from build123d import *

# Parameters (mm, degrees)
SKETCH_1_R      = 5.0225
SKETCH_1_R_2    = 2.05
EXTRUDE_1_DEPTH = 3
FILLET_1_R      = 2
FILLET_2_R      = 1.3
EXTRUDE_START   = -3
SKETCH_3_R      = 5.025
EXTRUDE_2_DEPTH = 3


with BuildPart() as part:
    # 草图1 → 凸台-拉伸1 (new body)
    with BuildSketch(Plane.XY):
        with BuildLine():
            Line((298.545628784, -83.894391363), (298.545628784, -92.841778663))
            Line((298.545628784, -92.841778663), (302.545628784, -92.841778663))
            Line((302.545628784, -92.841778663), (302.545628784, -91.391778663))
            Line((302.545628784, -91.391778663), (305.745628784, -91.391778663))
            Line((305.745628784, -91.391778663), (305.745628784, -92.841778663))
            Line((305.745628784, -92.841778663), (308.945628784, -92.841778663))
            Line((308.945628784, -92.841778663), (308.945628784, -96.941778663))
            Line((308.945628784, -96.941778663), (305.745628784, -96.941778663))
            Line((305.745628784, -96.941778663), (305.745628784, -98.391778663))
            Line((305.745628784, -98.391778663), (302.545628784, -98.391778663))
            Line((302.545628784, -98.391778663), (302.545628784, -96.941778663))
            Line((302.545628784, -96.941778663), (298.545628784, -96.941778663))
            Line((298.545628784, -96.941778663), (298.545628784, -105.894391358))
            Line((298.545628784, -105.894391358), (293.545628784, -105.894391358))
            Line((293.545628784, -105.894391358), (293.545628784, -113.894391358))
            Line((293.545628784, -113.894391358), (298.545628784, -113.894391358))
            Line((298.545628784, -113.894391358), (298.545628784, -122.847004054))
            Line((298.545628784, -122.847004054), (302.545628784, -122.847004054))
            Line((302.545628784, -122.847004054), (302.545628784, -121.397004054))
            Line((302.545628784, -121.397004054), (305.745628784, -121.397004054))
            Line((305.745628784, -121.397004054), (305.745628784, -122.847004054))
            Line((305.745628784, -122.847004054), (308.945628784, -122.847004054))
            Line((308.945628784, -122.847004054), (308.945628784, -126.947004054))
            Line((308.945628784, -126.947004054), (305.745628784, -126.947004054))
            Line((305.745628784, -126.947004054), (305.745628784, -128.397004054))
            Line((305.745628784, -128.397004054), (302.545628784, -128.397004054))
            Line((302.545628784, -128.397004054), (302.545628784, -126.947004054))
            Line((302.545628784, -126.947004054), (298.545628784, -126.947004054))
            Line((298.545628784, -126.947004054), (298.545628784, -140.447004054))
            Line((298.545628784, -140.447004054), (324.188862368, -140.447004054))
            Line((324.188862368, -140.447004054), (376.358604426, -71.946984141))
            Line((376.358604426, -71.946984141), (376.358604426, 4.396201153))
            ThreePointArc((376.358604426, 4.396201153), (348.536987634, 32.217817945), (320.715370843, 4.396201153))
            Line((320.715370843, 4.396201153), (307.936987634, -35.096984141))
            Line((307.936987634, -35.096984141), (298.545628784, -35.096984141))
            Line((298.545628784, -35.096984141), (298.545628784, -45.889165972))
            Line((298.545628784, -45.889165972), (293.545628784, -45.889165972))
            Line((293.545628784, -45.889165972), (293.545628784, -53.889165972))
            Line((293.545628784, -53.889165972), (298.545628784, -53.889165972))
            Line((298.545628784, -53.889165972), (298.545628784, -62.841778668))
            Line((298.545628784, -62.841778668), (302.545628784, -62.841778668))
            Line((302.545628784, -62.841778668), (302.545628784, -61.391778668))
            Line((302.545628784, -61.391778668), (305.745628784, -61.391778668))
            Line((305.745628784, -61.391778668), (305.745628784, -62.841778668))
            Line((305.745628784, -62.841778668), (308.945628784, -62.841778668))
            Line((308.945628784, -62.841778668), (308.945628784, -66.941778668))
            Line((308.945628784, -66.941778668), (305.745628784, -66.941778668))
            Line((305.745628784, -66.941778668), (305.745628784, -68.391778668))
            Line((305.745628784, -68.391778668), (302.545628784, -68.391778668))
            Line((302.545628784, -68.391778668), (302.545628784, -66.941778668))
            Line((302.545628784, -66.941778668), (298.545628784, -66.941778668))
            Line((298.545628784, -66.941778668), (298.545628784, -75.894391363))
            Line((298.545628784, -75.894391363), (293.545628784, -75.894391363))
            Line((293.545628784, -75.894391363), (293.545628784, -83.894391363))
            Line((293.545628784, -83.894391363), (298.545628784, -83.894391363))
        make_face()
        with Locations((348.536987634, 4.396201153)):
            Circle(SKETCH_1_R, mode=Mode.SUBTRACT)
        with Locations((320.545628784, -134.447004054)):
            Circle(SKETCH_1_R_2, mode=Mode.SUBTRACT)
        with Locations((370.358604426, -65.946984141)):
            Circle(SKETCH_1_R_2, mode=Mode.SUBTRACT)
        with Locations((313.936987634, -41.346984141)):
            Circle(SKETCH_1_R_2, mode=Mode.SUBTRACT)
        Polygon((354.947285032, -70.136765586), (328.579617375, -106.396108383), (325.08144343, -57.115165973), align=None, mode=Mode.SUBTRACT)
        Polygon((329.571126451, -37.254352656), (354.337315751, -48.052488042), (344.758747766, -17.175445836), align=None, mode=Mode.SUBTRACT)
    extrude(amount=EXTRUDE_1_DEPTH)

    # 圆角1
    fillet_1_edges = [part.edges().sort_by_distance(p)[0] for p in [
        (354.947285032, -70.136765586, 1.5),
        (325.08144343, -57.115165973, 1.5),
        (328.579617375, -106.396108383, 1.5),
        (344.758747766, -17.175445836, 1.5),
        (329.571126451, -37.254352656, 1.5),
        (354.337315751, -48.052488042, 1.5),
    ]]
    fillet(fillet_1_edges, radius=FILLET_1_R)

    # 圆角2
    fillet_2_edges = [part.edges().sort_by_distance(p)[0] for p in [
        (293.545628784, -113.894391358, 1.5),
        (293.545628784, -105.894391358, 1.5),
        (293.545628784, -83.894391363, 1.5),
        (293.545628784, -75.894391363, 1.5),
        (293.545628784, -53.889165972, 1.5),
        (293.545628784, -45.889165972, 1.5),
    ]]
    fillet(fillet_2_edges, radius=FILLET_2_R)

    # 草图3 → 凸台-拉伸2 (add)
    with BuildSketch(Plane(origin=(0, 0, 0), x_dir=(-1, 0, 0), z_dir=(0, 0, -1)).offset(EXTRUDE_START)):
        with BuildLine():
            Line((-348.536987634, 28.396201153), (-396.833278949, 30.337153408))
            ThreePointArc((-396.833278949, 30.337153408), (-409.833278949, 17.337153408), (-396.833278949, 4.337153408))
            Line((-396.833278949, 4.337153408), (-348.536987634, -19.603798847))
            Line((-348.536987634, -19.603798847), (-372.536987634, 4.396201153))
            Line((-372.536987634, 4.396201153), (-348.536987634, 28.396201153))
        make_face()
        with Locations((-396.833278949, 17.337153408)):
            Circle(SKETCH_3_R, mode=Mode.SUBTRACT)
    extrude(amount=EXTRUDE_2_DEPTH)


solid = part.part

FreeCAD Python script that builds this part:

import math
import FreeCAD as App
import Part
import Sketcher

V = App.Vector


def edges_at(feature, points):
    """Names of the edges that pass closest to the given points."""
    edges = feature.Shape.Edges
    near = lambda p: min(range(len(edges)), key=lambda i: edges[i].distToShape(Part.Vertex(*p))[0])
    return sorted({f"Edge{near(p) + 1}" for p in points})

doc = App.newDocument("Part")
body = doc.addObject("PartDesign::Body", "Body")

# Sketch on XY plane
sketch1 = body.newObject("Sketcher::SketchObject", "Sketch")
sketch1.AttachmentSupport = (doc.getObject("XY_Plane"), [""])
sketch1.MapMode = "FlatFace"
sketch1.addGeometry([
    Part.LineSegment(V(298.545629, -83.894391, 0), V(298.545629, -92.841779, 0)),  # 0
    Part.LineSegment(V(298.545629, -92.841779, 0), V(302.545629, -92.841779, 0)),  # 1
    Part.LineSegment(V(302.545629, -92.841779, 0), V(302.545629, -91.391779, 0)),  # 2
    Part.LineSegment(V(302.545629, -91.391779, 0), V(305.745629, -91.391779, 0)),  # 3
    Part.LineSegment(V(305.745629, -91.391779, 0), V(305.745629, -92.841779, 0)),  # 4
    Part.LineSegment(V(305.745629, -92.841779, 0), V(308.945629, -92.841779, 0)),  # 5
    Part.LineSegment(V(308.945629, -92.841779, 0), V(308.945629, -96.941779, 0)),  # 6
    Part.LineSegment(V(308.945629, -96.941779, 0), V(305.745629, -96.941779, 0)),  # 7
    Part.LineSegment(V(305.745629, -96.941779, 0), V(305.745629, -98.391779, 0)),  # 8
    Part.LineSegment(V(305.745629, -98.391779, 0), V(302.545629, -98.391779, 0)),  # 9
    Part.LineSegment(V(302.545629, -98.391779, 0), V(302.545629, -96.941779, 0)),  # 10
    Part.LineSegment(V(302.545629, -96.941779, 0), V(298.545629, -96.941779, 0)),  # 11
    Part.LineSegment(V(298.545629, -96.941779, 0), V(298.545629, -105.894391, 0)),  # 12
    Part.LineSegment(V(298.545629, -105.894391, 0), V(293.545629, -105.894391, 0)),  # 13
    Part.LineSegment(V(293.545629, -105.894391, 0), V(293.545629, -113.894391, 0)),  # 14
    Part.LineSegment(V(293.545629, -113.894391, 0), V(298.545629, -113.894391, 0)),  # 15
    Part.LineSegment(V(298.545629, -113.894391, 0), V(298.545629, -122.847004, 0)),  # 16
    Part.LineSegment(V(298.545629, -122.847004, 0), V(302.545629, -122.847004, 0)),  # 17
    Part.LineSegment(V(302.545629, -122.847004, 0), V(302.545629, -121.397004, 0)),  # 18
    Part.LineSegment(V(302.545629, -121.397004, 0), V(305.745629, -121.397004, 0)),  # 19
    Part.LineSegment(V(305.745629, -121.397004, 0), V(305.745629, -122.847004, 0)),  # 20
    Part.LineSegment(V(305.745629, -122.847004, 0), V(308.945629, -122.847004, 0)),  # 21
    Part.LineSegment(V(308.945629, -122.847004, 0), V(308.945629, -126.947004, 0)),  # 22
    Part.LineSegment(V(308.945629, -126.947004, 0), V(305.745629, -126.947004, 0)),  # 23
    Part.LineSegment(V(305.745629, -126.947004, 0), V(305.745629, -128.397004, 0)),  # 24
    Part.LineSegment(V(305.745629, -128.397004, 0), V(302.545629, -128.397004, 0)),  # 25
    Part.LineSegment(V(302.545629, -128.397004, 0), V(302.545629, -126.947004, 0)),  # 26
    Part.LineSegment(V(302.545629, -126.947004, 0), V(298.545629, -126.947004, 0)),  # 27
    Part.LineSegment(V(298.545629, -126.947004, 0), V(298.545629, -140.447004, 0)),  # 28
    Part.LineSegment(V(298.545629, -140.447004, 0), V(324.188862, -140.447004, 0)),  # 29
    Part.LineSegment(V(324.188862, -140.447004, 0), V(376.358604, -71.946984, 0)),  # 30
    Part.LineSegment(V(376.358604, -71.946984, 0), V(376.358604, 4.396201, 0)),  # 31
    Part.ArcOfCircle(Part.Circle(V(348.536988, 4.396201, 0), V(0, 0, 1), 27.821617), math.radians(0), math.radians(180)),  # 32
    Part.LineSegment(V(320.715371, 4.396201, 0), V(307.936988, -35.096984, 0)),  # 33
    Part.LineSegment(V(307.936988, -35.096984, 0), V(298.545629, -35.096984, 0)),  # 34
    Part.LineSegment(V(298.545629, -35.096984, 0), V(298.545629, -45.889166, 0)),  # 35
    Part.LineSegment(V(298.545629, -45.889166, 0), V(293.545629, -45.889166, 0)),  # 36
    Part.LineSegment(V(293.545629, -45.889166, 0), V(293.545629, -53.889166, 0)),  # 37
    Part.LineSegment(V(293.545629, -53.889166, 0), V(298.545629, -53.889166, 0)),  # 38
    Part.LineSegment(V(298.545629, -53.889166, 0), V(298.545629, -62.841779, 0)),  # 39
    Part.LineSegment(V(298.545629, -62.841779, 0), V(302.545629, -62.841779, 0)),  # 40
    Part.LineSegment(V(302.545629, -62.841779, 0), V(302.545629, -61.391779, 0)),  # 41
    Part.LineSegment(V(302.545629, -61.391779, 0), V(305.745629, -61.391779, 0)),  # 42
    Part.LineSegment(V(305.745629, -61.391779, 0), V(305.745629, -62.841779, 0)),  # 43
    Part.LineSegment(V(305.745629, -62.841779, 0), V(308.945629, -62.841779, 0)),  # 44
    Part.LineSegment(V(308.945629, -62.841779, 0), V(308.945629, -66.941779, 0)),  # 45
    Part.LineSegment(V(308.945629, -66.941779, 0), V(305.745629, -66.941779, 0)),  # 46
    Part.LineSegment(V(305.745629, -66.941779, 0), V(305.745629, -68.391779, 0)),  # 47
    Part.LineSegment(V(305.745629, -68.391779, 0), V(302.545629, -68.391779, 0)),  # 48
    Part.LineSegment(V(302.545629, -68.391779, 0), V(302.545629, -66.941779, 0)),  # 49
    Part.LineSegment(V(302.545629, -66.941779, 0), V(298.545629, -66.941779, 0)),  # 50
    Part.LineSegment(V(298.545629, -66.941779, 0), V(298.545629, -75.894391, 0)),  # 51
    Part.LineSegment(V(298.545629, -75.894391, 0), V(293.545629, -75.894391, 0)),  # 52
    Part.LineSegment(V(293.545629, -75.894391, 0), V(293.545629, -83.894391, 0)),  # 53
    Part.LineSegment(V(293.545629, -83.894391, 0), V(298.545629, -83.894391, 0)),  # 54
    Part.Circle(V(320.545629, -134.447004, 0), V(0, 0, 1), 2.05),  # 55
    Part.LineSegment(V(325.081443, -57.115166, 0), V(354.947285, -70.136766, 0)),  # 56
    Part.LineSegment(V(354.947285, -70.136766, 0), V(328.579617, -106.396108, 0)),  # 57
    Part.LineSegment(V(328.579617, -106.396108, 0), V(325.081443, -57.115166, 0)),  # 58
    Part.Circle(V(370.358604, -65.946984, 0), V(0, 0, 1), 2.05),  # 59
    Part.Circle(V(313.936988, -41.346984, 0), V(0, 0, 1), 2.05),  # 60
    Part.LineSegment(V(354.337316, -48.052488, 0), V(329.571126, -37.254353, 0)),  # 61
    Part.LineSegment(V(329.571126, -37.254353, 0), V(344.758748, -17.175446, 0)),  # 62
    Part.LineSegment(V(344.758748, -17.175446, 0), V(354.337316, -48.052488, 0)),  # 63
    Part.Circle(V(348.536988, 4.396201, 0), V(0, 0, 1), 5.0225),  # 64
], False)
sketch1.addConstraint([
    Sketcher.Constraint("Coincident", 0, 2, 1, 1),
    Sketcher.Constraint("Coincident", 1, 2, 2, 1),
    Sketcher.Constraint("Coincident", 2, 2, 3, 1),
    Sketcher.Constraint("Coincident", 3, 2, 4, 1),
    Sketcher.Constraint("Coincident", 4, 2, 5, 1),
    Sketcher.Constraint("Coincident", 5, 2, 6, 1),
    Sketcher.Constraint("Coincident", 6, 2, 7, 1),
    Sketcher.Constraint("Coincident", 7, 2, 8, 1),
    Sketcher.Constraint("Coincident", 8, 2, 9, 1),
    Sketcher.Constraint("Coincident", 9, 2, 10, 1),
    Sketcher.Constraint("Coincident", 10, 2, 11, 1),
    Sketcher.Constraint("Coincident", 11, 2, 12, 1),
    Sketcher.Constraint("Coincident", 12, 2, 13, 1),
    Sketcher.Constraint("Coincident", 13, 2, 14, 1),
    Sketcher.Constraint("Coincident", 14, 2, 15, 1),
    Sketcher.Constraint("Coincident", 15, 2, 16, 1),
    Sketcher.Constraint("Coincident", 16, 2, 17, 1),
    Sketcher.Constraint("Coincident", 17, 2, 18, 1),
    Sketcher.Constraint("Coincident", 18, 2, 19, 1),
    Sketcher.Constraint("Coincident", 19, 2, 20, 1),
    Sketcher.Constraint("Coincident", 20, 2, 21, 1),
    Sketcher.Constraint("Coincident", 21, 2, 22, 1),
    Sketcher.Constraint("Coincident", 22, 2, 23, 1),
    Sketcher.Constraint("Coincident", 23, 2, 24, 1),
    Sketcher.Constraint("Coincident", 24, 2, 25, 1),
    Sketcher.Constraint("Coincident", 25, 2, 26, 1),
    Sketcher.Constraint("Coincident", 26, 2, 27, 1),
    Sketcher.Constraint("Coincident", 27, 2, 28, 1),
    Sketcher.Constraint("Coincident", 28, 2, 29, 1),
    Sketcher.Constraint("Coincident", 29, 2, 30, 1),
    Sketcher.Constraint("Coincident", 30, 2, 31, 1),
    Sketcher.Constraint("Tangent", 31, 2, 32, 1),
    Sketcher.Constraint("Coincident", 32, 2, 33, 1),
    Sketcher.Constraint("Coincident", 33, 2, 34, 1),
    Sketcher.Constraint("Coincident", 34, 2, 35, 1),
    Sketcher.Constraint("Coincident", 35, 2, 36, 1),
    Sketcher.Constraint("Coincident", 36, 2, 37, 1),
    Sketcher.Constraint("Coincident", 37, 2, 38, 1),
    Sketcher.Constraint("Coincident", 38, 2, 39, 1),
    Sketcher.Constraint("Coincident", 39, 2, 40, 1),
    Sketcher.Constraint("Coincident", 40, 2, 41, 1),
    Sketcher.Constraint("Coincident", 41, 2, 42, 1),
    Sketcher.Constraint("Coincident", 42, 2, 43, 1),
    Sketcher.Constraint("Coincident", 43, 2, 44, 1),
    Sketcher.Constraint("Coincident", 44, 2, 45, 1),
    Sketcher.Constraint("Coincident", 45, 2, 46, 1),
    Sketcher.Constraint("Coincident", 46, 2, 47, 1),
    Sketcher.Constraint("Coincident", 47, 2, 48, 1),
    Sketcher.Constraint("Coincident", 48, 2, 49, 1),
    Sketcher.Constraint("Coincident", 49, 2, 50, 1),
    Sketcher.Constraint("Coincident", 50, 2, 51, 1),
    Sketcher.Constraint("Coincident", 51, 2, 52, 1),
    Sketcher.Constraint("Coincident", 52, 2, 53, 1),
    Sketcher.Constraint("Coincident", 53, 2, 54, 1),
    Sketcher.Constraint("Coincident", 54, 2, 0, 1),
    Sketcher.Constraint("Coincident", 56, 2, 57, 1),
    Sketcher.Constraint("Coincident", 57, 2, 58, 1),
    Sketcher.Constraint("Coincident", 58, 2, 56, 1),
    Sketcher.Constraint("Coincident", 61, 2, 62, 1),
    Sketcher.Constraint("Coincident", 62, 2, 63, 1),
    Sketcher.Constraint("Coincident", 63, 2, 61, 1),
    Sketcher.Constraint("Vertical", 0),
    Sketcher.Constraint("Horizontal", 1),
    Sketcher.Constraint("Vertical", 2),
    Sketcher.Constraint("Horizontal", 3),
    Sketcher.Constraint("Vertical", 4),
    Sketcher.Constraint("Horizontal", 5),
    Sketcher.Constraint("Vertical", 6),
    Sketcher.Constraint("Horizontal", 7),
    Sketcher.Constraint("Vertical", 8),
    Sketcher.Constraint("Horizontal", 9),
    Sketcher.Constraint("Vertical", 10),
    Sketcher.Constraint("Horizontal", 11),
    Sketcher.Constraint("Vertical", 12),
    Sketcher.Constraint("Horizontal", 13),
    Sketcher.Constraint("Vertical", 14),
    Sketcher.Constraint("Horizontal", 15),
    Sketcher.Constraint("Vertical", 16),
    Sketcher.Constraint("Horizontal", 17),
    Sketcher.Constraint("Vertical", 18),
    Sketcher.Constraint("Horizontal", 19),
    Sketcher.Constraint("Vertical", 20),
    Sketcher.Constraint("Horizontal", 21),
    Sketcher.Constraint("Vertical", 22),
    Sketcher.Constraint("Horizontal", 23),
    Sketcher.Constraint("Vertical", 24),
    Sketcher.Constraint("Horizontal", 25),
    Sketcher.Constraint("Vertical", 26),
    Sketcher.Constraint("Horizontal", 27),
    Sketcher.Constraint("Vertical", 28),
    Sketcher.Constraint("Horizontal", 29),
    Sketcher.Constraint("Vertical", 31),
    Sketcher.Constraint("Horizontal", 34),
    Sketcher.Constraint("Vertical", 35),
    Sketcher.Constraint("Horizontal", 36),
    Sketcher.Constraint("Vertical", 37),
    Sketcher.Constraint("Horizontal", 38),
    Sketcher.Constraint("Vertical", 39),
    Sketcher.Constraint("Horizontal", 40),
    Sketcher.Constraint("Vertical", 41),
    Sketcher.Constraint("Horizontal", 42),
    Sketcher.Constraint("Vertical", 43),
    Sketcher.Constraint("Horizontal", 44),
    Sketcher.Constraint("Vertical", 45),
    Sketcher.Constraint("Horizontal", 46),
    Sketcher.Constraint("Vertical", 47),
    Sketcher.Constraint("Horizontal", 48),
    Sketcher.Constraint("Vertical", 49),
    Sketcher.Constraint("Horizontal", 50),
    Sketcher.Constraint("Vertical", 51),
    Sketcher.Constraint("Horizontal", 52),
    Sketcher.Constraint("Vertical", 53),
    Sketcher.Constraint("Horizontal", 54),
    Sketcher.Constraint("Coincident", 64, 3, 32, 3),
    Sketcher.Constraint("Equal", 55, 59),
    Sketcher.Constraint("Equal", 59, 60),
    Sketcher.Constraint("Parallel", 56, 61),
    Sketcher.Constraint("Horizontal", 1, 2, 4, 2),
    Sketcher.Constraint("Horizontal", 7, 2, 10, 2),
    Sketcher.Constraint("Horizontal", 17, 2, 20, 2),
    Sketcher.Constraint("Horizontal", 23, 2, 26, 2),
    Sketcher.Constraint("Horizontal", 31, 2, 32, 2),
    Sketcher.Constraint("Horizontal", 40, 2, 43, 2),
    Sketcher.Constraint("Horizontal", 46, 2, 49, 2),
    Sketcher.Constraint("Vertical", 4, 2, 7, 2),
    Sketcher.Constraint("Vertical", 2, 2, 9, 2),
    Sketcher.Constraint("Vertical", 0, 2, 11, 2),
    Sketcher.Constraint("Vertical", 12, 2, 15, 2),
    Sketcher.Constraint("Vertical", 10, 2, 17, 2),
    Sketcher.Constraint("Vertical", 8, 2, 19, 2),
    Sketcher.Constraint("Vertical", 6, 2, 21, 2),
    Sketcher.Constraint("Vertical", 20, 2, 23, 2),
    Sketcher.Constraint("Vertical", 18, 2, 25, 2),
    Sketcher.Constraint("Vertical", 16, 2, 27, 2),
    Sketcher.Constraint("Vertical", 28, 2, 34, 2),
    Sketcher.Constraint("Vertical", 14, 2, 36, 2),
    Sketcher.Constraint("Vertical", 35, 2, 38, 2),
    Sketcher.Constraint("Vertical", 26, 2, 40, 2),
    Sketcher.Constraint("Vertical", 24, 2, 42, 2),
    Sketcher.Constraint("Vertical", 22, 2, 44, 2),
    Sketcher.Constraint("Vertical", 43, 2, 46, 2),
    Sketcher.Constraint("Vertical", 41, 2, 48, 2),
    Sketcher.Constraint("Vertical", 39, 2, 50, 2),
    Sketcher.Constraint("Vertical", 37, 2, 52, 2),
    Sketcher.Constraint("Equal", 3, 5),
    Sketcher.Constraint("Equal", 4, 8),
    Sketcher.Constraint("Equal", 12, 16),
    Sketcher.Constraint("Equal", 10, 18),
    Sketcher.Constraint("Equal", 6, 22),
    Sketcher.Constraint("Equal", 20, 24),
    Sketcher.Constraint("Equal", 14, 37),
    Sketcher.Constraint("Equal", 16, 39),
    Sketcher.Constraint("Equal", 26, 41),
    Sketcher.Constraint("Equal", 22, 45),
    Sketcher.Constraint("Equal", 43, 47),
    Sketcher.Constraint("Equal", 39, 51),
    Sketcher.Constraint("Equal", 37, 53),
    Sketcher.Constraint("Diameter", 55, 4.1),
    Sketcher.Constraint("DistanceX", 1, 1, 1, 2, 4.0),
    Sketcher.Constraint("DistanceX", 13, 2, 13, 1, 5.0),
    Sketcher.Constraint("DistanceY", 14, 2, 14, 1, 8.0),
    Sketcher.Constraint("Diameter", 64, 10.045),
    Sketcher.Constraint("DistanceX", 3, 1, 3, 2, 3.2),
    Sketcher.Constraint("DistanceY", 6, 2, 6, 1, 4.1),
    Sketcher.Constraint("DistanceY", 28, 2, 28, 1, 13.5),
    Sketcher.Constraint("DistanceY", 2, 1, 2, 2, 1.45),
    Sketcher.Constraint("Radius", 32, 27.821617),
    Sketcher.Constraint("DistanceX", 34, 2, 34, 1, 9.391359),
    Sketcher.Constraint("DistanceY", 35, 2, 35, 1, 10.792182),
    Sketcher.Constraint("DistanceY", -1, 1, 32, 3, 4.396201),
    Sketcher.Constraint("Distance", 30, 86.104208),
    Sketcher.Constraint("Distance", 33, 41.50902),
    Sketcher.Constraint("DistanceX", 29, 1, 29, 2, 25.643234),
    Sketcher.Constraint("DistanceY", 0, 2, 0, 1, 8.947387),
    Sketcher.Constraint("DistanceY", 12, 2, 12, 1, 8.952613),
    Sketcher.Constraint("DistanceY", 31, 1, 31, 2, 76.343185),
    Sketcher.Constraint("DistanceX", -1, 1, 55, 3, 320.545629),
    Sketcher.Constraint("DistanceX", -1, 1, 0, 2, 298.545629),
    Sketcher.Constraint("DistanceY", 57, 2, -1, 1, 106.396108),
    Sketcher.Constraint("DistanceY", 63, 2, -1, 1, 48.052488),
    Sketcher.Constraint("Distance", 56, 32.581138),
    Sketcher.Constraint("Distance", 57, 44.832955),
    Sketcher.Constraint("Distance", 58, 49.404944),
    Sketcher.Constraint("Distance", 61, 27.017843),
    Sketcher.Constraint("Distance", 62, 25.175908),
    Sketcher.Constraint("Distance", 63, 32.328636),
    Sketcher.Constraint("DistanceY", 55, 3, -1, 1, 134.447004),
    Sketcher.Constraint("DistanceX", -1, 1, 59, 3, 370.358604),
    Sketcher.Constraint("DistanceY", 59, 3, -1, 1, 65.946984),
    Sketcher.Constraint("DistanceX", -1, 1, 60, 3, 313.936988),
    Sketcher.Constraint("DistanceY", 60, 3, -1, 1, 41.346984),
    Sketcher.Constraint("DistanceX", -1, 1, 56, 2, 354.947285),
    Sketcher.Constraint("DistanceY", 56, 2, -1, 1, 70.136766),
    Sketcher.Constraint("DistanceX", -1, 1, 61, 2, 329.571126),
])
pad1 = body.newObject("PartDesign::Pad", "Pad")
pad1.Profile = sketch1
pad1.Length = 3
doc.recompute()

fillet = body.newObject("PartDesign::Fillet", "Fillet")
fillet.Base = (pad1, edges_at(pad1, [
    (354.947, -70.137, 1.5),
    (325.081, -57.115, 1.5),
    (328.58, -106.396, 1.5),
    (344.759, -17.175, 1.5),
    (329.571, -37.254, 1.5),
    (354.337, -48.052, 1.5),
]))
fillet.Radius = 2
doc.recompute()

fillet2 = body.newObject("PartDesign::Fillet", "Fillet001")
fillet2.Base = (fillet, edges_at(fillet, [
    (293.546, -113.894, 1.5),
    (293.546, -105.894, 1.5),
    (293.546, -83.894, 1.5),
    (293.546, -75.894, 1.5),
    (293.546, -53.889, 1.5),
    (293.546, -45.889, 1.5),
]))
fillet2.Radius = 1.3

# Sketch on XY plane
sketch2 = body.newObject("Sketcher::SketchObject", "Sketch001")
sketch2.AttachmentSupport = (doc.getObject("XY_Plane"), [""])
sketch2.MapMode = "FlatFace"
sketch2.AttachmentOffset = App.Placement(V(0, 0, 3), App.Rotation())
sketch2.addGeometry([
    Part.LineSegment(V(348.536988, 28.396201, 0), V(396.833279, 30.337153, 0)),  # 0
    Part.ArcOfCircle(Part.Circle(V(396.833279, 17.337153, 0), V(0, 0, 1), 13), math.radians(-90), math.radians(90)),  # 1
    Part.LineSegment(V(396.833279, 4.337153, 0), V(348.536988, -19.603799, 0)),  # 2
    Part.LineSegment(V(348.536988, -19.603799, 0), V(372.536988, 4.396201, 0)),  # 3
    Part.LineSegment(V(372.536988, 4.396201, 0), V(348.536988, 28.396201, 0)),  # 4
    Part.Circle(V(396.833279, 17.337153, 0), V(0, 0, 1), 5.025),  # 5
], False)
sketch2.addConstraint([
    Sketcher.Constraint("Coincident", 0, 2, 1, 2),
    Sketcher.Constraint("Coincident", 1, 1, 2, 1),
    Sketcher.Constraint("Coincident", 2, 2, 3, 1),
    Sketcher.Constraint("Coincident", 3, 2, 4, 1),
    Sketcher.Constraint("Coincident", 4, 2, 0, 1),
    Sketcher.Constraint("Coincident", 5, 3, 1, 3),
    Sketcher.Constraint("Perpendicular", 3, 4),
    Sketcher.Constraint("Vertical", 5, 3, 0, 2),
    Sketcher.Constraint("Vertical", 0, 2, 1, 1),
    Sketcher.Constraint("Vertical", 2, 2, 4, 2),
    Sketcher.Constraint("Equal", 3, 4),
    Sketcher.Constraint("Radius", 1, 13.0),
    Sketcher.Constraint("Diameter", 5, 10.05),
    Sketcher.Constraint("DistanceX", 2, 2, 3, 2, 24.0),
    Sketcher.Constraint("DistanceY", 2, 2, -1, 1, 19.603799),
    Sketcher.Constraint("DistanceX", -1, 1, 1, 3, 396.833279),
    Sketcher.Constraint("DistanceX", 2, 2, 1, 1, 48.296291),
    Sketcher.Constraint("Distance", 0, 48.335277),
])
pad2 = body.newObject("PartDesign::Pad", "Pad001")
pad2.Profile = sketch2
pad2.Length = 3
pad2.Reversed = True

doc.recompute()
